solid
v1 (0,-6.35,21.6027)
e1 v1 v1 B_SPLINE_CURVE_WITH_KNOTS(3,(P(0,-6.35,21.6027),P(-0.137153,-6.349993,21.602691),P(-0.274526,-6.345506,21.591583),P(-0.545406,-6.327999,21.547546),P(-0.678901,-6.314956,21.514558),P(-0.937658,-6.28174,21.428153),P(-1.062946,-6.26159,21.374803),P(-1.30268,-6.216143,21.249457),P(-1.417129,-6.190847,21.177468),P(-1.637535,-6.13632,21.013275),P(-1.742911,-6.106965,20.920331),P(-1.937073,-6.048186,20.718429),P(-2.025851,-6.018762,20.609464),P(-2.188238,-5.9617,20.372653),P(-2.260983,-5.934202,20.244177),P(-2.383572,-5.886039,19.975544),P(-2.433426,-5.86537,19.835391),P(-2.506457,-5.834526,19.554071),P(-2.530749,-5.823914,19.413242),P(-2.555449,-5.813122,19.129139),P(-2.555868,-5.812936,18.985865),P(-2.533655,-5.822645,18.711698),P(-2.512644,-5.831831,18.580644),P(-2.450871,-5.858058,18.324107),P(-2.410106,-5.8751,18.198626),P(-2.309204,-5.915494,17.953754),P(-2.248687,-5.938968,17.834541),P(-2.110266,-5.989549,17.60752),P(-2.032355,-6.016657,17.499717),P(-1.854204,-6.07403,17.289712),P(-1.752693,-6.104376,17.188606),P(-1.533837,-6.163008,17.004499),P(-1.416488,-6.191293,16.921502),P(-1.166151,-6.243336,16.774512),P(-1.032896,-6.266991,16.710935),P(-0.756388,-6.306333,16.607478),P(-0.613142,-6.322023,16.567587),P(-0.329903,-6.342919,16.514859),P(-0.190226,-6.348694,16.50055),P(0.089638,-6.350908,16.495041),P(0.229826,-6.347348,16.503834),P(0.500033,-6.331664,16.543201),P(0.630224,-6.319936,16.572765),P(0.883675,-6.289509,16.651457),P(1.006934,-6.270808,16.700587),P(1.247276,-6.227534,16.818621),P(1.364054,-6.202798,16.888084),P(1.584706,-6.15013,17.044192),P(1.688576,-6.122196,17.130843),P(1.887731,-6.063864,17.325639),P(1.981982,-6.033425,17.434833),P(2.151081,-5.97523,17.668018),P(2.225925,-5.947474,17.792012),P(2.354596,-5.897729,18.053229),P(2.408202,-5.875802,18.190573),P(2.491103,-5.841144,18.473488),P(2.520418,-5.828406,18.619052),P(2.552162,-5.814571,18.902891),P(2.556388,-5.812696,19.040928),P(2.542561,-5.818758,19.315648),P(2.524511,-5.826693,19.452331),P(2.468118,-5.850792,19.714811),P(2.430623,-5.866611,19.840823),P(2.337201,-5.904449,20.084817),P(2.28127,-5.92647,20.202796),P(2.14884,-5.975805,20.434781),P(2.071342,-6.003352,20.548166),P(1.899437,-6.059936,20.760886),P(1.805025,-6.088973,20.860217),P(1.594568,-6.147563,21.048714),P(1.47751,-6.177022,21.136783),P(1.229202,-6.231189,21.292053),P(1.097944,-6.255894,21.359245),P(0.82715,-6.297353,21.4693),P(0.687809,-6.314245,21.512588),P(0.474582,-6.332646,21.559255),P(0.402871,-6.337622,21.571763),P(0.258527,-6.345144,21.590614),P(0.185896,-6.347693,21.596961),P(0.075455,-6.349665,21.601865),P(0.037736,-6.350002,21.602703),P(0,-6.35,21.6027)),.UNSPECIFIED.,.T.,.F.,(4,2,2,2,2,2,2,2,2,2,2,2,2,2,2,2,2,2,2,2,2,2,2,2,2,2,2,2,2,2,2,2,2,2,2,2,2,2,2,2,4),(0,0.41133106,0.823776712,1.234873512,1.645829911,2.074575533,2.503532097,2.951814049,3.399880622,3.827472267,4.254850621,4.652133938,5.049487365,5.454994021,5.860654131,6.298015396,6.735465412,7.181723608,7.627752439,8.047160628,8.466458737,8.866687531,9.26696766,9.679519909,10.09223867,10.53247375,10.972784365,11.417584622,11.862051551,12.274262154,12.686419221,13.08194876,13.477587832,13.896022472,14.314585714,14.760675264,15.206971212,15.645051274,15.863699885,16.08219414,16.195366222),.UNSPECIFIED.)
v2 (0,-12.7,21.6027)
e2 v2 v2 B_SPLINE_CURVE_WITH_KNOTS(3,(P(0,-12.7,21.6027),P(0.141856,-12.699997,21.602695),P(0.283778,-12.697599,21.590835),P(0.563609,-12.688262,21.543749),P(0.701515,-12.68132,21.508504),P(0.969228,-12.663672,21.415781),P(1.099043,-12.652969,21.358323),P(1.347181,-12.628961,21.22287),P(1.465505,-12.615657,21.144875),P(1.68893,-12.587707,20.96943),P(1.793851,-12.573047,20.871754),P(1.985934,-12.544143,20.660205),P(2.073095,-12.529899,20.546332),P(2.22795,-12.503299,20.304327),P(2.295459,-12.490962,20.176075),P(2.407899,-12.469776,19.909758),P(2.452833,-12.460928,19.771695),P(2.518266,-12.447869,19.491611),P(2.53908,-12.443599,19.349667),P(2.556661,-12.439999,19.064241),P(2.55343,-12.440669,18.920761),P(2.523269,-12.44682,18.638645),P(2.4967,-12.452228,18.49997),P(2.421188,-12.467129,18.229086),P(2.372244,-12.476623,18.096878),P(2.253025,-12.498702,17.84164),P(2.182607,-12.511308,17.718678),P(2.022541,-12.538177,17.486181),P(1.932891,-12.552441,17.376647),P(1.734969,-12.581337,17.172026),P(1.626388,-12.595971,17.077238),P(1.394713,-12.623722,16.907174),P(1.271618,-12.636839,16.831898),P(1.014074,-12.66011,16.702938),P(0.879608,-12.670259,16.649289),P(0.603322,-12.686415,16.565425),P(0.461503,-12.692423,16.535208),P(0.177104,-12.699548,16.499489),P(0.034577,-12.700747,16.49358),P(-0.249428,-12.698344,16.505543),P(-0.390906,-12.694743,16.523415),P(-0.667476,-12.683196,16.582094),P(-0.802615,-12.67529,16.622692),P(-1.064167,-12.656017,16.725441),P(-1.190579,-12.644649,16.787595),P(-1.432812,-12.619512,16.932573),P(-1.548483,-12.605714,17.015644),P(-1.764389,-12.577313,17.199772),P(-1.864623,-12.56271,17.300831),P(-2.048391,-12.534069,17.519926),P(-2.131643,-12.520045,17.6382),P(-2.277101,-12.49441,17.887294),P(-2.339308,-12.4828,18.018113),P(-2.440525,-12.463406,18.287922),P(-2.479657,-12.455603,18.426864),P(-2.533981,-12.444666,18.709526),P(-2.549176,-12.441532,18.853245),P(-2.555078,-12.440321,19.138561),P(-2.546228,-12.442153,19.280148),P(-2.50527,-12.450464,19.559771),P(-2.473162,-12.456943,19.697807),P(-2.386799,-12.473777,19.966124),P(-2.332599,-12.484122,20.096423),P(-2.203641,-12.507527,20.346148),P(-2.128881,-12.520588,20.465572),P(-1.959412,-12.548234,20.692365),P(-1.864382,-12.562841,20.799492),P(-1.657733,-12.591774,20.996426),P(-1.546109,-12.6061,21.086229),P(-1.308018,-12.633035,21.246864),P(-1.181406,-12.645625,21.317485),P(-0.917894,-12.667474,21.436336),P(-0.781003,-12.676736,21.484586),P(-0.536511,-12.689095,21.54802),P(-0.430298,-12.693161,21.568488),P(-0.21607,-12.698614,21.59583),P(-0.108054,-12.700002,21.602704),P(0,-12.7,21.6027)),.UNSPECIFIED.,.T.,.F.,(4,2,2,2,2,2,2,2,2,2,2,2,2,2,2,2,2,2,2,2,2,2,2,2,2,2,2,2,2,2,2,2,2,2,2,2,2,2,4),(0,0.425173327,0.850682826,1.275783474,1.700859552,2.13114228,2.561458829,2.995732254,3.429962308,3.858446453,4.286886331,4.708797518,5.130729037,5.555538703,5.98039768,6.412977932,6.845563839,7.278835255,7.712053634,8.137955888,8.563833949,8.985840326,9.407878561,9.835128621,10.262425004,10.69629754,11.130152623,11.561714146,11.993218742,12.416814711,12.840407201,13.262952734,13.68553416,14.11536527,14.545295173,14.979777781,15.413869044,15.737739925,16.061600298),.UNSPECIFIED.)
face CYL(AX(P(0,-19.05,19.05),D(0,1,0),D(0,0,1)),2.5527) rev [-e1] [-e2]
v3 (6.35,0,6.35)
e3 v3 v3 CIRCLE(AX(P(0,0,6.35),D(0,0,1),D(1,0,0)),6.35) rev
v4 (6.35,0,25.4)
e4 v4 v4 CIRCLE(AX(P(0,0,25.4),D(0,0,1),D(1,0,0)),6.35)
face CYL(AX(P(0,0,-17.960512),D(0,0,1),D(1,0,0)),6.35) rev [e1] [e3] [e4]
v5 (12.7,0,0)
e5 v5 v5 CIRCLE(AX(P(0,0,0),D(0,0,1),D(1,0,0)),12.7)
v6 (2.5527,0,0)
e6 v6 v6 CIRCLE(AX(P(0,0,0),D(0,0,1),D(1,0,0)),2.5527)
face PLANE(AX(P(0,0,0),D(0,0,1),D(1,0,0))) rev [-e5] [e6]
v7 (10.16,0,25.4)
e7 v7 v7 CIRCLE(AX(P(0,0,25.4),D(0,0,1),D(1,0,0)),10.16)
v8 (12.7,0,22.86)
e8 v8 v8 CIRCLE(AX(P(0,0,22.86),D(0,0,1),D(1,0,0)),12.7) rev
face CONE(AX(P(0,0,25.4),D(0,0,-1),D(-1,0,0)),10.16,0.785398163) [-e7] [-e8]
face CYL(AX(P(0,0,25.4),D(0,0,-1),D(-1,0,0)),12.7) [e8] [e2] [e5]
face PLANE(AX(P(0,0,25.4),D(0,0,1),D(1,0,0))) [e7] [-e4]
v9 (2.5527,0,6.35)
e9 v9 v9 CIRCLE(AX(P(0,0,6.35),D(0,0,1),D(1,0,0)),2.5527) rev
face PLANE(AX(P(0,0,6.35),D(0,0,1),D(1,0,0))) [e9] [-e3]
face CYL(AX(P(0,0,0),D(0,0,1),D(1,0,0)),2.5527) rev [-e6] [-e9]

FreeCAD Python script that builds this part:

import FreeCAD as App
import Part
import Sketcher
from FreeCAD import Vector
Q = App.Units.Quantity


def edges_at(feature, points):
    """Names of the edges that pass closest to the given points."""
    edges = feature.Shape.Edges
    near = lambda p: min(range(len(edges)), key=lambda i: edges[i].distToShape(Part.Vertex(*p))[0])
    return sorted({f"Edge{near(p) + 1}" for p in points})

doc = App.newDocument("Part")
body = doc.addObject("PartDesign::Body", "Body")

# Sketch on XY plane
sketch1 = body.newObject("Sketcher::SketchObject", "Sketch")
sketch1.AttachmentSupport = (doc.getObject("XY_Plane"), [""])
sketch1.MapMode = "FlatFace"
sketch1.addGeometry(Part.Circle(Vector(0, 0, 0), Vector(0, 0, 1), 12.7), False)
sketch1.addConstraint(Sketcher.Constraint("Coincident", 0, 3, -1, 1))
sketch1.addConstraint(Sketcher.Constraint("Diameter", 0, Q("1 in")))
pad1 = body.newObject("PartDesign::Pad", "Pad")
pad1.Profile = sketch1
pad1.Length = Q("1 in")

# Sketch on XY plane
sketch2 = body.newObject("Sketcher::SketchObject", "Sketch001")
sketch2.AttachmentSupport = (doc.getObject("XY_Plane"), [""])
sketch2.MapMode = "FlatFace"
sketch2.AttachmentOffset = App.Placement(Vector(0, 0, 1 * 25.4), App.Rotation())
sketch2.addGeometry(Part.Circle(Vector(0, 0, 0), Vector(0, 0, 1), 2.5527), False)
sketch2.addConstraint(Sketcher.Constraint("Coincident", 0, 3, -1, 1))
sketch2.addConstraint(Sketcher.Constraint("Diameter", 0, Q("0.201 in")))
pocket1 = body.newObject("PartDesign::Pocket", "Pocket")
pocket1.Profile = sketch2
pocket1.Type = "ThroughAll"

# Sketch on XY plane
sketch3 = body.newObject("Sketcher::SketchObject", "Sketch002")
sketch3.AttachmentSupport = (doc.getObject("XY_Plane"), [""])
sketch3.MapMode = "FlatFace"
sketch3.AttachmentOffset = App.Placement(Vector(0, 0, 1 * 25.4), App.Rotation())
sketch3.addGeometry(Part.Circle(Vector(0, 0, 0), Vector(0, 0, 1), 6.35), False)
sketch3.addConstraint(Sketcher.Constraint("Coincident", 0, 3, -1, 1))
sketch3.addConstraint(Sketcher.Constraint("Diameter", 0, Q("0.5 in")))
pocket2 = body.newObject("PartDesign::Pocket", "Pocket001")
pocket2.Profile = sketch3
pocket2.Length = Q("0.75 in")
doc.recompute()

chamfer = body.newObject("PartDesign::Chamfer", "Chamfer")
chamfer.Base = (pocket2, edges_at(pocket2, [(-12.7, 0, 25.4)]))
chamfer.Size = Q("0.1 in")

# Sketch on XZ plane
sketch4 = body.newObject("Sketcher::SketchObject", "Sketch003")
sketch4.AttachmentSupport = (doc.getObject("XZ_Plane"), [""])
sketch4.MapMode = "FlatFace"
sketch4.addGeometry(Part.Circle(Vector(0, 19.05, 0), Vector(0, 0, 1), 2.5527), False)
sketch4.addConstraint(Sketcher.Constraint("PointOnObject", 0, 3, -2))
sketch4.addConstraint(Sketcher.Constraint("Diameter", 0, Q("0.201 in")))
sketch4.addConstraint(Sketcher.Constraint("DistanceY", -1, 1, 0, 3, Q("0.75 in")))
pocket3 = body.newObject("PartDesign::Pocket", "Pocket002")
pocket3.Profile = sketch4
pocket3.Length = Q("0.75 in")
pocket3.Reversed = True

doc.recompute()
